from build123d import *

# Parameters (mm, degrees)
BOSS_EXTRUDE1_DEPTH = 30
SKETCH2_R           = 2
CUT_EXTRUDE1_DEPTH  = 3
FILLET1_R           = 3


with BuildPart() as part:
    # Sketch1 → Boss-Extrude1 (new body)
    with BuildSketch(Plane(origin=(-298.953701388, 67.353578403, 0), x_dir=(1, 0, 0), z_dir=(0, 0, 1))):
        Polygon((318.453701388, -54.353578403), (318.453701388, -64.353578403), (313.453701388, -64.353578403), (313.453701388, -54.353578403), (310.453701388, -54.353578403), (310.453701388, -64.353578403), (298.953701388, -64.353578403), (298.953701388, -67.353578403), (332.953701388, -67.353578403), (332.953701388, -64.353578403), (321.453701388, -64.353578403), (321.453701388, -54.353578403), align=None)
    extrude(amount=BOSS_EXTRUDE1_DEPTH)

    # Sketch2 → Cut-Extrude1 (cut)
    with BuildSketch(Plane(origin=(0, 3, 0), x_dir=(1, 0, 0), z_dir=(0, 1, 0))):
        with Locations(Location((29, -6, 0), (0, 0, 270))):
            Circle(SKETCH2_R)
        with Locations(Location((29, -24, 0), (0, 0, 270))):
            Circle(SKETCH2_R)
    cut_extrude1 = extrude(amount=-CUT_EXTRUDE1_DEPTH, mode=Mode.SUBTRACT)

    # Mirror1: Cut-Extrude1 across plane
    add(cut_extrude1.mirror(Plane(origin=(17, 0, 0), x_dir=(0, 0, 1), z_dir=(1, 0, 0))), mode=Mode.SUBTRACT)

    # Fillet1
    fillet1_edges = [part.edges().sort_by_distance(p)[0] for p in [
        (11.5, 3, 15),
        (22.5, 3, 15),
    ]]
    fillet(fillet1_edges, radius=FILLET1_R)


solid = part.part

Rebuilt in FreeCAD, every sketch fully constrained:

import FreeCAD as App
import Part
import Sketcher
Q = App.Units.Quantity


def edges_at(feature, points):
    """Names of the edges that pass closest to the given points."""
    edges = feature.Shape.Edges
    near = lambda p: min(range(len(edges)), key=lambda i: edges[i].distToShape(Part.Vertex(*p))[0])
    return sorted({f"Edge{near(p) + 1}" for p in points})

doc = App.newDocument("Part")
params = doc.addObject("Spreadsheet::Sheet", "Params")
for row, (alias, value) in enumerate([
    ("sketch1_width", "5 mm"),
    ("sketch1_width2", "3 mm"),
    ("sketch1_width3", "34 mm"),
    ("sketch1_height", "10 mm"),
    ("pad1_length", "30 mm"),
    ("sketch2_diameter", "4 mm"),
    ("pocket1_length", "3 mm"),
    ("fillet_radius", "3 mm"),
], start=1):
    params.set(f"A{row}", alias)
    params.set(f"B{row}", "=" + value)
    params.setAlias(f"B{row}", alias)

body = doc.addObject("PartDesign::Body", "Body")

sketch1 = doc.addObject("Sketcher::SketchObject", "Sketch")
body.addObject(sketch1)
sketch1.AttachmentSupport = (doc.XY_Plane, [""])
sketch1.MapMode = "FlatFace"
sketch1.addGeometry([
    Part.LineSegment(App.Vector(19.5, 13, 0), App.Vector(19.5, 3, 0)),
    Part.LineSegment(App.Vector(19.5, 3, 0), App.Vector(14.5, 3, 0)),
    Part.LineSegment(App.Vector(14.5, 3, 0), App.Vector(14.5, 13, 0)),
    Part.LineSegment(App.Vector(14.5, 13, 0), App.Vector(11.5, 13, 0)),
    Part.LineSegment(App.Vector(11.5, 13, 0), App.Vector(11.5, 3, 0)),
    Part.LineSegment(App.Vector(11.5, 3, 0), App.Vector(0, 3, 0)),
    Part.LineSegment(App.Vector(0, 3, 0), App.Vector(0, 0, 0)),
    Part.LineSegment(App.Vector(0, 0, 0), App.Vector(34, 0, 0)),
    Part.LineSegment(App.Vector(34, 0, 0), App.Vector(34, 3, 0)),
    Part.LineSegment(App.Vector(34, 3, 0), App.Vector(22.5, 3, 0)),
    Part.LineSegment(App.Vector(22.5, 3, 0), App.Vector(22.5, 13, 0)),
    Part.LineSegment(App.Vector(22.5, 13, 0), App.Vector(19.5, 13, 0)),
], False)
sketch1.addConstraint([
    Sketcher.Constraint("Coincident", 0, 2, 1, 1),
    Sketcher.Constraint("Coincident", 1, 2, 2, 1),
    Sketcher.Constraint("Coincident", 2, 2, 3, 1),
    Sketcher.Constraint("Coincident", 3, 2, 4, 1),
    Sketcher.Constraint("Coincident", 4, 2, 5, 1),
    Sketcher.Constraint("Coincident", 5, 2, 6, 1),
    Sketcher.Constraint("Coincident", 6, 2, 7, 1),
    Sketcher.Constraint("Coincident", 7, 2, 8, 1),
    Sketcher.Constraint("Coincident", 8, 2, 9, 1),
    Sketcher.Constraint("Coincident", 9, 2, 10, 1),
    Sketcher.Constraint("Coincident", 10, 2, 11, 1),
    Sketcher.Constraint("Coincident", 11, 2, 0, 1),
    Sketcher.Constraint("Vertical", 0),
    Sketcher.Constraint("Horizontal", 1),
    Sketcher.Constraint("Vertical", 2),
    Sketcher.Constraint("Horizontal", 3),
    Sketcher.Constraint("Vertical", 4),
    Sketcher.Constraint("Horizontal", 5),
    Sketcher.Constraint("Vertical", 6),
    Sketcher.Constraint("Horizontal", 7),
    Sketcher.Constraint("Vertical", 8),
    Sketcher.Constraint("Horizontal", 9),
    Sketcher.Constraint("Vertical", 10),
    Sketcher.Constraint("Horizontal", 11),
    Sketcher.Constraint("Coincident", 6, 2, -1, 1),
    Sketcher.Constraint("Horizontal", 1, 2, 4, 2),
    Sketcher.Constraint("Horizontal", 5, 2, 8, 2),
    Sketcher.Constraint("Horizontal", 3, 2, 10, 2),
    Sketcher.Constraint("Equal", 5, 9),
    Sketcher.Constraint("Equal", 3, 11),
    Sketcher.Constraint("Equal", 11, 6),
    Sketcher.Constraint("DistanceX", 1, 2, 1, 1, Q("5 mm")),
    Sketcher.Constraint("DistanceX", 3, 2, 3, 1, Q("3 mm")),
    Sketcher.Constraint("DistanceX", 7, 1, 7, 2, Q("34 mm")),
    Sketcher.Constraint("DistanceY", 0, 2, 0, 1, Q("10 mm")),
])
sketch1.setExpression("Constraints[31]", "Params.sketch1_width")
sketch1.setExpression("Constraints[32]", "Params.sketch1_width2")
sketch1.setExpression("Constraints[33]", "Params.sketch1_width3")
sketch1.setExpression("Constraints[34]", "Params.sketch1_height")
pad1 = doc.addObject("PartDesign::Pad", "Pad")
body.addObject(pad1)
pad1.Profile = sketch1
pad1.setExpression("Length", "Params.pad1_length")

sketch2 = doc.addObject("Sketcher::SketchObject", "Sketch001")
body.addObject(sketch2)
sketch2.AttachmentSupport = (doc.XZ_Plane, [""])
sketch2.MapMode = "FlatFace"
sketch2.AttachmentOffset = App.Placement(App.Vector(0, 0, -3), App.Rotation())
sketch2.addGeometry([
    Part.Circle(App.Vector(29, 6, 0), App.Vector(0, 0, 1), 2),
    Part.Circle(App.Vector(29, 24, 0), App.Vector(0, 0, 1), 2),
], False)
sketch2.addConstraint([
    Sketcher.Constraint("Equal", 0, 1),
    Sketcher.Constraint("Vertical", 0, 3, 1, 3),
    Sketcher.Constraint("Diameter", 0, Q("4 mm")),
    Sketcher.Constraint("DistanceX", -1, 1, 0, 3, Q("29 mm")),
    Sketcher.Constraint("DistanceY", -1, 1, 0, 3, Q("6 mm")),
    Sketcher.Constraint("DistanceY", -1, 1, 1, 3, Q("24 mm")),
])
sketch2.setExpression("Constraints[2]", "Params.sketch2_diameter")
pocket1 = doc.addObject("PartDesign::Pocket", "Pocket")
body.addObject(pocket1)
pocket1.Profile = sketch2
pocket1.setExpression("Length", "Params.pocket1_length")
pocket1.Reversed = True
doc.recompute()

datumplane = doc.addObject("PartDesign::Plane", "DatumPlane")
body.addObject(datumplane)
datumplane.AttachmentSupport = (doc.YZ_Plane, [""])
datumplane.MapMode = "FlatFace"
datumplane.AttachmentOffset = App.Placement(App.Vector(0, 0, 17), App.Rotation())
mirrored = doc.addObject("PartDesign::Mirrored", "Mirrored")
body.addObject(mirrored)
mirrored.Originals = [pocket1]
mirrored.MirrorPlane = (datumplane, [""])
body.Tip = mirrored
doc.recompute()

fillet = doc.addObject("PartDesign::Fillet", "Fillet")
body.addObject(fillet)
fillet.Base = (mirrored, edges_at(mirrored, [(11.5, 3, 15), (22.5, 3, 15)]))
fillet.setExpression("Radius", "Params.fillet_radius")

doc.recompute()
